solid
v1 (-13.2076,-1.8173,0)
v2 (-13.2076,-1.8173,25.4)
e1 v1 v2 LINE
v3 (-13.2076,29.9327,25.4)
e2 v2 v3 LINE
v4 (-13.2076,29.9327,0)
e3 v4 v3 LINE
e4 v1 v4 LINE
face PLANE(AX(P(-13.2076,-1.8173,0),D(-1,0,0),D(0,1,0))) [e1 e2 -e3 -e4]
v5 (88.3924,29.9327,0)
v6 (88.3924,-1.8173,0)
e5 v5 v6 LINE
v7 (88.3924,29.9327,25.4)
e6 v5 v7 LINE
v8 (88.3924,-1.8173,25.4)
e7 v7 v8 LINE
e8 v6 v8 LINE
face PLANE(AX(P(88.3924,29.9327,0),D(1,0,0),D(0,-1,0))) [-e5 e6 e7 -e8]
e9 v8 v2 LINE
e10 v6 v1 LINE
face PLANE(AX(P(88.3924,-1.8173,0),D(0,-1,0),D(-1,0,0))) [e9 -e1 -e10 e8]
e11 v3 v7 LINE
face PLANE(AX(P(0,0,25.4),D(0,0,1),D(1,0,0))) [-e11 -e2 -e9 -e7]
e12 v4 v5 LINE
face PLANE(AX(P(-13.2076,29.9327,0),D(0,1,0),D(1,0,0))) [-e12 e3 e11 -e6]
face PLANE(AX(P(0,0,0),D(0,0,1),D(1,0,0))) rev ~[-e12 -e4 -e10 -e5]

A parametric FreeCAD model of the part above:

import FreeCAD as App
import Part
import Sketcher
Q = App.Units.Quantity


def add_polygon(sketch, points):
    """Adds a closed chain of lines whose ends are joined by coincident constraints."""
    first, n = sketch.GeometryCount, len(points)
    for a, b in zip(points, points[1:] + points[:1]):
        sketch.addGeometry(Part.LineSegment(App.Vector(*a, 0), App.Vector(*b, 0)), False)
    for i in range(n):
        sketch.addConstraint(Sketcher.Constraint("Coincident", first + i, 2, first + (i + 1) % n, 1))

doc = App.newDocument("Part")
body = doc.addObject("PartDesign::Body", "Body")

# Sketch on XY plane
sketch1 = body.newObject("Sketcher::SketchObject", "Sketch")
sketch1.AttachmentSupport = (doc.getObject("XY_Plane"), [""])
sketch1.MapMode = "FlatFace"
add_polygon(sketch1, [(88, 30), (-13, 30), (-13, -2), (88, -2)])  # lines 0-3
sketch1.addConstraint(Sketcher.Constraint("Horizontal", 0))
sketch1.addConstraint(Sketcher.Constraint("Vertical", 1))
sketch1.addConstraint(Sketcher.Constraint("Horizontal", 2))
sketch1.addConstraint(Sketcher.Constraint("Vertical", 3))
sketch1.addConstraint(Sketcher.Constraint("DistanceX", 0, 2, 0, 1, Q("4 in")))
sketch1.addConstraint(Sketcher.Constraint("DistanceY", 1, 2, 1, 1, Q("1.25 in")))
sketch1.addConstraint(Sketcher.Constraint("DistanceX", 0, 2, -1, 1, Q("13.2076 mm")))
sketch1.addConstraint(Sketcher.Constraint("DistanceY", -1, 1, 0, 2, Q("29.9327 mm")))
pad1 = body.newObject("PartDesign::Pad", "Pad")
pad1.Profile = sketch1
pad1.Length = Q("1 in")

doc.recompute()
